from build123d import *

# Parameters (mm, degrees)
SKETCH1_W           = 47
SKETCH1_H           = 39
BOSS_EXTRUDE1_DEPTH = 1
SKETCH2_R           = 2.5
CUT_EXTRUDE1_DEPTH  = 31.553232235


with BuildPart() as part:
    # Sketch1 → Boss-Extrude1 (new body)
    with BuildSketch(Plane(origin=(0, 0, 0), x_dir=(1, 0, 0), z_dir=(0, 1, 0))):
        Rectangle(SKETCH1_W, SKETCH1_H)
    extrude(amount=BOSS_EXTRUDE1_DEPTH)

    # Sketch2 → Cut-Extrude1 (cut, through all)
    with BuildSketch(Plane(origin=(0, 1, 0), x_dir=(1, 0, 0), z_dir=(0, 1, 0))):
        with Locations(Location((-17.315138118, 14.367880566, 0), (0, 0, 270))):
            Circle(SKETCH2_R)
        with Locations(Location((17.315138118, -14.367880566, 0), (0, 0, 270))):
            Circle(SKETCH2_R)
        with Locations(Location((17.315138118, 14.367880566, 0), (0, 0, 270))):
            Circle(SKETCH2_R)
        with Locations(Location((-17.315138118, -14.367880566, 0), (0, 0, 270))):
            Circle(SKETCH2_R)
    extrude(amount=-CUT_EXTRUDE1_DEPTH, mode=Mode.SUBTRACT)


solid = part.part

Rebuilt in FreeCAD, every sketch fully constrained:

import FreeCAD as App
import Part
import Sketcher
from FreeCAD import Vector


def add_polygon(sketch, points):
    """Adds a closed chain of lines whose ends are joined by coincident constraints."""
    first, n = sketch.GeometryCount, len(points)
    for a, b in zip(points, points[1:] + points[:1]):
        sketch.addGeometry(Part.LineSegment(App.Vector(*a, 0), App.Vector(*b, 0)), False)
    for i in range(n):
        sketch.addConstraint(Sketcher.Constraint("Coincident", first + i, 2, first + (i + 1) % n, 1))

doc = App.newDocument("Part")
params = doc.addObject("Spreadsheet::Sheet", "Params")
for row, (alias, value) in enumerate([
    ("sketch1_width", "47 mm"),
    ("sketch1_height", "39 mm"),
    ("pad1_length", "1 mm"),
    ("sketch2_diameter", "5 mm"),
], start=1):
    params.set(f"A{row}", alias)
    params.set(f"B{row}", "=" + value)
    params.setAlias(f"B{row}", alias)

body = doc.addObject("PartDesign::Body", "Body")

# Sketch on XZ plane
sketch1 = doc.addObject("Sketcher::SketchObject", "Sketch")
body.addObject(sketch1)
sketch1.AttachmentSupport = (doc.XZ_Plane, [""])
sketch1.MapMode = "FlatFace"
add_polygon(sketch1, [(-24, -20), (-24, 20), (24, 20), (24, -20)])  # lines 0-3
sketch1.addConstraint([
    Sketcher.Constraint("Vertical", 0),
    Sketcher.Constraint("Horizontal", 1),
    Sketcher.Constraint("Vertical", 2),
    Sketcher.Constraint("Horizontal", 3),
    Sketcher.Constraint("Symmetric", 0, 2, 2, 2, -1, 1),
    Sketcher.Constraint("DistanceX", 1, 1, 1, 2, 47.0),
    Sketcher.Constraint("DistanceY", 0, 1, 0, 2, 39.0),
])
sketch1.setExpression("Constraints[9]", "Params.sketch1_width")
sketch1.setExpression("Constraints[10]", "Params.sketch1_height")
pad1 = doc.addObject("PartDesign::Pad", "Pad")
body.addObject(pad1)
pad1.Profile = sketch1
pad1.setExpression("Length", "Params.pad1_length")
pad1.Reversed = True

# Sketch on XZ plane
sketch2 = doc.addObject("Sketcher::SketchObject", "Sketch001")
body.addObject(sketch2)
sketch2.AttachmentSupport = (doc.XZ_Plane, [""])
sketch2.MapMode = "FlatFace"
sketch2.AttachmentOffset = App.Placement(Vector(0, 0, -1), App.Rotation())
sketch2.addGeometry([
    Part.Circle(Vector(-17.3, -14.4, 0), Vector(0, 0, 1), 2.5),
    Part.Circle(Vector(17.3, 14.4, 0), Vector(0, 0, 1), 2.5),
    Part.Circle(Vector(17.3, -14.4, 0), Vector(0, 0, 1), 2.5),
    Part.Circle(Vector(-17.3, 14.4, 0), Vector(0, 0, 1), 2.5),
], False)
sketch2.addConstraint([
    Sketcher.Constraint("Equal", 0, 1),
    Sketcher.Constraint("Equal", 1, 2),
    Sketcher.Constraint("Equal", 2, 3),
    Sketcher.Constraint("Symmetric", 0, 3, 1, 3, -1, 1),
    Sketcher.Constraint("Symmetric", 2, 3, 3, 3, -1, 1),
    Sketcher.Constraint("Symmetric", 0, 3, 2, 3, -2),
    Sketcher.Constraint("Diameter", 0, 5.0),
    Sketcher.Constraint("DistanceX", 0, 3, -1, 1, 17.315138),
    Sketcher.Constraint("DistanceY", 0, 3, -1, 1, 14.367881),
])
sketch2.setExpression("Constraints[6]", "Params.sketch2_diameter")
pocket1 = doc.addObject("PartDesign::Pocket", "Pocket")
body.addObject(pocket1)
pocket1.Profile = sketch2
pocket1.Type = "ThroughAll"
pocket1.Reversed = True

doc.recompute()
